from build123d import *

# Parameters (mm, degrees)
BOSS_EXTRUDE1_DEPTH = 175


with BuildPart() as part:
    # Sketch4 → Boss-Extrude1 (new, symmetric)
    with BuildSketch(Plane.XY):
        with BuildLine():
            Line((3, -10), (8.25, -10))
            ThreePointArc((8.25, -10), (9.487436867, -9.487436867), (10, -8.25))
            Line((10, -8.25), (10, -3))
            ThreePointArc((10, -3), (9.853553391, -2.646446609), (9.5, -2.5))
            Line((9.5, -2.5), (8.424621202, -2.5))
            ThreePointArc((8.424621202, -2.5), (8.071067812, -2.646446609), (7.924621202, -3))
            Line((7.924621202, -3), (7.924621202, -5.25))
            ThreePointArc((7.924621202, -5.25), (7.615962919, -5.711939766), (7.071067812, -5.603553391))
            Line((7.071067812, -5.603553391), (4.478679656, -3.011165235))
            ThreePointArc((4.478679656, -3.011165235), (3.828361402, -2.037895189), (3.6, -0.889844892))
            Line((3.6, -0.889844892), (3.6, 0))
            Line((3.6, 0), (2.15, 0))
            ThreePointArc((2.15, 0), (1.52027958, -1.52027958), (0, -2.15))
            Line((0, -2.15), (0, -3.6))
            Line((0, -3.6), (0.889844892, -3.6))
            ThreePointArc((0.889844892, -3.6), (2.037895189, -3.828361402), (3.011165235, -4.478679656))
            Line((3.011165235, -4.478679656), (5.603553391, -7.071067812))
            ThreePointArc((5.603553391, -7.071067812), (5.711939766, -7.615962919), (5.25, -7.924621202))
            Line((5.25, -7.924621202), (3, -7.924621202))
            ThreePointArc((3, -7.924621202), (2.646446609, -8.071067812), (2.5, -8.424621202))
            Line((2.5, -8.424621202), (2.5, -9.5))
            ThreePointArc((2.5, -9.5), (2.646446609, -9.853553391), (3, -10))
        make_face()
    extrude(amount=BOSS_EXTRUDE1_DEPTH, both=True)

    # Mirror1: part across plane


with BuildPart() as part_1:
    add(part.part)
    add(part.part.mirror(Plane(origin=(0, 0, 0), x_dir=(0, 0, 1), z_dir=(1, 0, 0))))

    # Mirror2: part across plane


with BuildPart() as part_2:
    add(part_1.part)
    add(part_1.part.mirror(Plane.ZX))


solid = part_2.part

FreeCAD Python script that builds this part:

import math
import FreeCAD as App
import Part
import Sketcher
from FreeCAD import Vector

doc = App.newDocument("Part")
params = doc.addObject("Spreadsheet::Sheet", "Params")
for row, (alias, value) in enumerate([
    ("sketch1_radius", "3 mm"),
    ("sketch1_radius2", "0.5 mm"),
    ("sketch1_radius3", "1.75 mm"),
    ("sketch1_radius4", "2.15 mm"),
    ("sketch1_width", "1.45 mm"),
    ("pad1_length", "350 mm"),
], start=1):
    params.set(f"A{row}", alias)
    params.set(f"B{row}", "=" + value)
    params.setAlias(f"B{row}", alias)

body = doc.addObject("PartDesign::Body", "Body")

# Sketch on XY plane
sketch1 = doc.addObject("Sketcher::SketchObject", "Sketch")
body.addObject(sketch1)
sketch1.AttachmentSupport = (doc.XY_Plane, [""])
sketch1.MapMode = "FlatFace"
sketch1.addGeometry([
    Part.LineSegment(Vector(3, -10, 0), Vector(8.25, -10, 0)),  # 0
    Part.ArcOfCircle(Part.Circle(Vector(8.25, -8.25, 0), Vector(0, 0, 1), 1.75), math.radians(-90), math.radians(0)),  # 1
    Part.LineSegment(Vector(10, -8.25, 0), Vector(10, -3, 0)),  # 2
    Part.ArcOfCircle(Part.Circle(Vector(9.5, -3, 0), Vector(0, 0, 1), 0.5), math.radians(0), math.radians(90)),  # 3
    Part.LineSegment(Vector(9.5, -2.5, 0), Vector(8.42, -2.5, 0)),  # 4
    Part.ArcOfCircle(Part.Circle(Vector(8.42, -3, 0), Vector(0, 0, 1), 0.5), math.radians(90), math.radians(180)),  # 5
    Part.LineSegment(Vector(7.92, -3, 0), Vector(7.92, -5.25, 0)),  # 6
    Part.ArcOfCircle(Part.Circle(Vector(7.42, -5.25, 0), Vector(0, 0, 1), 0.5), math.radians(-135), math.radians(0)),  # 7
    Part.LineSegment(Vector(7.07, -5.6, 0), Vector(4.48, -3.01, 0)),  # 8
    Part.ArcOfCircle(Part.Circle(Vector(6.6, -0.89, 0), Vector(0, 0, 1), 3), math.radians(180), math.radians(225)),  # 9
    Part.LineSegment(Vector(3.6, -0.89, 0), Vector(3.6, 0, 0)),  # 10
    Part.LineSegment(Vector(3.6, 0, 0), Vector(2.15, 0, 0)),  # 11
    Part.ArcOfCircle(Part.Circle(Vector(0, 0, 0), Vector(0, 0, 1), 2.15), math.radians(-90), math.radians(0)),  # 12
    Part.LineSegment(Vector(0, -2.15, 0), Vector(0, -3.6, 0)),  # 13
    Part.LineSegment(Vector(0, -3.6, 0), Vector(0.89, -3.6, 0)),  # 14
    Part.ArcOfCircle(Part.Circle(Vector(0.89, -6.6, 0), Vector(0, 0, 1), 3), math.radians(45), math.radians(90)),  # 15
    Part.LineSegment(Vector(3.01, -4.48, 0), Vector(5.6, -7.07, 0)),  # 16
    Part.ArcOfCircle(Part.Circle(Vector(5.25, -7.42, 0), Vector(0, 0, 1), 0.5), math.radians(-90), math.radians(45)),  # 17
    Part.LineSegment(Vector(5.25, -7.92, 0), Vector(3, -7.92, 0)),  # 18
    Part.ArcOfCircle(Part.Circle(Vector(3, -8.42, 0), Vector(0, 0, 1), 0.5), math.radians(90), math.radians(180)),  # 19
    Part.LineSegment(Vector(2.5, -8.42, 0), Vector(2.5, -9.5, 0)),  # 20
    Part.ArcOfCircle(Part.Circle(Vector(3, -9.5, 0), Vector(0, 0, 1), 0.5), math.radians(180), math.radians(270)),  # 21
], False)
sketch1.addConstraint([
    Sketcher.Constraint("Tangent", 0, 2, 1, 1),
    Sketcher.Constraint("Tangent", 1, 2, 2, 1),
    Sketcher.Constraint("Tangent", 2, 2, 3, 1),
    Sketcher.Constraint("Tangent", 3, 2, 4, 1),
    Sketcher.Constraint("Tangent", 4, 2, 5, 1),
    Sketcher.Constraint("Tangent", 5, 2, 6, 1),
    Sketcher.Constraint("Tangent", 6, 2, 7, 2),
    Sketcher.Constraint("Tangent", 7, 1, 8, 1),
    Sketcher.Constraint("Tangent", 8, 2, 9, 2),
    Sketcher.Constraint("Tangent", 9, 1, 10, 1),
    Sketcher.Constraint("Coincident", 10, 2, 11, 1),
    Sketcher.Constraint("Coincident", 11, 2, 12, 2),
    Sketcher.Constraint("Coincident", 12, 1, 13, 1),
    Sketcher.Constraint("Coincident", 13, 2, 14, 1),
    Sketcher.Constraint("Tangent", 14, 2, 15, 2),
    Sketcher.Constraint("Tangent", 15, 1, 16, 1),
    Sketcher.Constraint("Tangent", 16, 2, 17, 2),
    Sketcher.Constraint("Tangent", 17, 1, 18, 1),
    Sketcher.Constraint("Tangent", 18, 2, 19, 1),
    Sketcher.Constraint("Tangent", 19, 2, 20, 1),
    Sketcher.Constraint("Tangent", 20, 2, 21, 1),
    Sketcher.Constraint("Tangent", 21, 2, 0, 1),
    Sketcher.Constraint("Horizontal", 0),
    Sketcher.Constraint("Vertical", 2),
    Sketcher.Constraint("Horizontal", 4),
    Sketcher.Constraint("Vertical", 6),
    Sketcher.Constraint("Vertical", 10),
    Sketcher.Constraint("Horizontal", 11),
    Sketcher.Constraint("Vertical", 13),
    Sketcher.Constraint("Horizontal", 14),
    Sketcher.Constraint("Horizontal", 18),
    Sketcher.Constraint("Vertical", 20),
    Sketcher.Constraint("Coincident", 12, 3, -1, 1),
    Sketcher.Constraint("Equal", 3, 5),
    Sketcher.Constraint("Equal", 5, 7),
    Sketcher.Constraint("Equal", 9, 15),
    Sketcher.Constraint("Equal", 7, 17),
    Sketcher.Constraint("Equal", 17, 19),
    Sketcher.Constraint("Equal", 19, 21),
    Sketcher.Constraint("PointOnObject", 10, 2, -1),
    Sketcher.Constraint("PointOnObject", 12, 1, -2),
    Sketcher.Constraint("Parallel", 8, 16),
    Sketcher.Constraint("Equal", 0, 2),
    Sketcher.Constraint("Equal", 18, 6),
    Sketcher.Constraint("Equal", 14, 10),
    Sketcher.Constraint("Equal", 11, 13),
    Sketcher.Constraint("Equal", 4, 20),
    Sketcher.Constraint("Equal", 8, 16),
    Sketcher.Constraint("Radius", 9, 3.0),
    Sketcher.Constraint("Radius", 3, 0.5),
    Sketcher.Constraint("Radius", 1, 1.75),
    Sketcher.Constraint("Radius", 12, 2.15),
    Sketcher.Constraint("DistanceY", 3, 3, -1, 1, 3.0),
    Sketcher.Constraint("DistanceY", 0, 2, -1, 1, 10.0),
    Sketcher.Constraint("DistanceY", 1, 3, 7, 3, 3.0),
    Sketcher.Constraint("DistanceX", 11, 2, 11, 1, 1.45),
    Sketcher.Constraint("DistanceX", 4, 2, 4, 1, 1.075379),
])
sketch1.setExpression("Constraints[48]", "Params.sketch1_radius")
sketch1.setExpression("Constraints[49]", "Params.sketch1_radius2")
sketch1.setExpression("Constraints[50]", "Params.sketch1_radius3")
sketch1.setExpression("Constraints[51]", "Params.sketch1_radius4")
sketch1.setExpression("Constraints[55]", "Params.sketch1_width")
pad1 = doc.addObject("PartDesign::Pad", "Pad")
body.addObject(pad1)
pad1.Profile = sketch1
pad1.setExpression("Length", "Params.pad1_length")
pad1.Midplane = True
body2 = doc.addObject("PartDesign::Body", "Body001")
doc.recompute()

body2.BaseFeature = body
doc.recompute()

mirroring = doc.addObject("Part::Mirroring", "Mirroring")
mirroring.Source = body
mirroring.Base = Vector(0, 0, 0)
mirroring.Normal = Vector(1, 0, 0)
body3 = doc.addObject("PartDesign::Body", "Body002")
body3.BaseFeature = mirroring
boolean = doc.addObject("PartDesign::Boolean", "Boolean")
body2.addObject(boolean)
boolean.Type = "Fuse"
boolean.addObjects([body3])
doc.recompute()
body4 = doc.addObject("PartDesign::Body", "Body003")
doc.recompute()

body4.BaseFeature = body2
doc.recompute()

mirroring2 = doc.addObject("Part::Mirroring", "Mirroring001")
mirroring2.Source = body2
mirroring2.Base = Vector(0, 0, 0)
mirroring2.Normal = Vector(0, 1, 0)
body5 = doc.addObject("PartDesign::Body", "Body004")
body5.BaseFeature = mirroring2
boolean2 = doc.addObject("PartDesign::Boolean", "Boolean001")
body4.addObject(boolean2)
boolean2.Type = "Fuse"
boolean2.addObjects([body5])
doc.recompute()
mirroring.Visibility = False
mirroring2.Visibility = False

doc.recompute()
